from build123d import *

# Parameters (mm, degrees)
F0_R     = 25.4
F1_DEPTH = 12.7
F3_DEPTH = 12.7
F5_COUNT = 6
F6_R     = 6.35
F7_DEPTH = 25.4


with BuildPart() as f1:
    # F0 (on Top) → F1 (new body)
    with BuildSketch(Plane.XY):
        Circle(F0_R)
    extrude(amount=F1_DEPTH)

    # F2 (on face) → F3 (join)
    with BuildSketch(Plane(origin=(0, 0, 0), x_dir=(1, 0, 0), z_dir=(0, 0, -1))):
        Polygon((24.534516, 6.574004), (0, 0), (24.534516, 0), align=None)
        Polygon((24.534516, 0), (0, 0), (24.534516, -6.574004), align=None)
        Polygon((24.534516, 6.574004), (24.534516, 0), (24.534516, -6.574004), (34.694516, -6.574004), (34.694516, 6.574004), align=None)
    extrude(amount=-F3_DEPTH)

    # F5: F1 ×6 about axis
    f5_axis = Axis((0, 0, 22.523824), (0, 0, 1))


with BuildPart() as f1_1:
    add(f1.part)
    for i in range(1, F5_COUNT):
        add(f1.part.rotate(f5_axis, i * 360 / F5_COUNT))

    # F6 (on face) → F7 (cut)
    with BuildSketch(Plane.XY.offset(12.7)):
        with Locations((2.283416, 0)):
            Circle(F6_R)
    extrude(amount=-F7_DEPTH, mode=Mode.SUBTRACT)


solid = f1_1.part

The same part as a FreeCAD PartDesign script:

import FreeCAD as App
import Part
import Sketcher

V = App.Vector
Q = App.Units.Quantity


def add_polygon(sketch, points):
    """Adds a closed chain of lines whose ends are joined by coincident constraints."""
    first, n = sketch.GeometryCount, len(points)
    for a, b in zip(points, points[1:] + points[:1]):
        sketch.addGeometry(Part.LineSegment(App.Vector(*a, 0), App.Vector(*b, 0)), False)
    for i in range(n):
        sketch.addConstraint(Sketcher.Constraint("Coincident", first + i, 2, first + (i + 1) % n, 1))

doc = App.newDocument("Part")
body = doc.addObject("PartDesign::Body", "Body")

sketch1 = body.newObject("Sketcher::SketchObject", "Sketch")
sketch1.AttachmentSupport = (doc.getObject("XY_Plane"), [""])
sketch1.MapMode = "FlatFace"
sketch1.addGeometry(Part.Circle(V(0, 0, 0), V(0, 0, 1), 25), False)
sketch1.addConstraint([
    Sketcher.Constraint("Coincident", 0, 3, -1, 1),
    Sketcher.Constraint("Diameter", 0, Q("2 in")),
])
pad1 = body.newObject("PartDesign::Pad", "Pad")
pad1.Profile = sketch1
pad1.Length = Q("0.5 in")

sketch2 = body.newObject("Sketcher::SketchObject", "Sketch001")
sketch2.AttachmentSupport = (doc.getObject("XY_Plane"), [""])
sketch2.MapMode = "FlatFace"
add_polygon(sketch2, [(25, -7), (0, 0), (25, 7), (35, 7), (35, -7)])
sketch2.addConstraint([
    Sketcher.Constraint("Horizontal", 2),
    Sketcher.Constraint("Vertical", 3),
    Sketcher.Constraint("Horizontal", 4),
    Sketcher.Constraint("Coincident", 0, 2, -1, 1),
    Sketcher.Constraint("Symmetric", 1, 2, 4, 2, -1),
    Sketcher.Constraint("Distance", 0, Q("1 in")),
    Sketcher.Constraint("DistanceX", 2, 1, 2, 2, Q("0.4 in")),
    Sketcher.Constraint("Angle", 0, Q("164.999999 deg")),
])
pad2 = body.newObject("PartDesign::Pad", "Pad001")
pad2.Profile = sketch2
pad2.Length = Q("0.5 in")
body2 = doc.addObject("PartDesign::Body", "Body001")
doc.recompute()

body2.BaseFeature = body
doc.recompute()

body3 = doc.addObject("PartDesign::Body", "Body002")
body3.BaseFeature = body
body3.Placement = App.Placement(V(0, 0, 0), App.Rotation(V(0, 0, 1), 60))
boolean = body2.newObject("PartDesign::Boolean", "Boolean")
boolean.Type = "Fuse"
boolean.addObjects([body3])
doc.recompute()

body4 = doc.addObject("PartDesign::Body", "Body003")
body4.BaseFeature = body
body4.Placement = App.Placement(V(0, 0, 0), App.Rotation(V(0, 0, 1), 120))
boolean2 = body2.newObject("PartDesign::Boolean", "Boolean001")
boolean2.Type = "Fuse"
boolean2.addObjects([body4])
doc.recompute()

body5 = doc.addObject("PartDesign::Body", "Body004")
body5.BaseFeature = body
body5.Placement = App.Placement(V(0, 0, 0), App.Rotation(V(0, 0, 1), 180))
boolean3 = body2.newObject("PartDesign::Boolean", "Boolean002")
boolean3.Type = "Fuse"
boolean3.addObjects([body5])
doc.recompute()

body6 = doc.addObject("PartDesign::Body", "Body005")
body6.BaseFeature = body
body6.Placement = App.Placement(V(0, 0, 0), App.Rotation(V(0, 0, 1), 240))
boolean4 = body2.newObject("PartDesign::Boolean", "Boolean003")
boolean4.Type = "Fuse"
boolean4.addObjects([body6])
doc.recompute()

body.Placement = App.Placement(V(0, 0, 0), App.Rotation(V(0, 0, 1), 300))
boolean5 = body2.newObject("PartDesign::Boolean", "Boolean004")
boolean5.Type = "Fuse"
boolean5.addObjects([body])

sketch3 = body2.newObject("Sketcher::SketchObject", "Sketch002")
sketch3.AttachmentSupport = (doc.getObject("XY_Plane001"), [""])
sketch3.MapMode = "FlatFace"
sketch3.AttachmentOffset = App.Placement(V(0, 0, 0.5 * 25.4), App.Rotation())
sketch3.addGeometry(Part.Circle(V(2, 0, 0), V(0, 0, 1), 6), False)
sketch3.addConstraint([
    Sketcher.Constraint("PointOnObject", 0, 3, -1),
    Sketcher.Constraint("Diameter", 0, Q("0.5 in")),
    Sketcher.Constraint("DistanceX", -1, 1, 0, 3, 2.283416),
])
pocket1 = body2.newObject("PartDesign::Pocket", "Pocket")
pocket1.Profile = sketch3
pocket1.Length = Q("1 in")

doc.recompute()
